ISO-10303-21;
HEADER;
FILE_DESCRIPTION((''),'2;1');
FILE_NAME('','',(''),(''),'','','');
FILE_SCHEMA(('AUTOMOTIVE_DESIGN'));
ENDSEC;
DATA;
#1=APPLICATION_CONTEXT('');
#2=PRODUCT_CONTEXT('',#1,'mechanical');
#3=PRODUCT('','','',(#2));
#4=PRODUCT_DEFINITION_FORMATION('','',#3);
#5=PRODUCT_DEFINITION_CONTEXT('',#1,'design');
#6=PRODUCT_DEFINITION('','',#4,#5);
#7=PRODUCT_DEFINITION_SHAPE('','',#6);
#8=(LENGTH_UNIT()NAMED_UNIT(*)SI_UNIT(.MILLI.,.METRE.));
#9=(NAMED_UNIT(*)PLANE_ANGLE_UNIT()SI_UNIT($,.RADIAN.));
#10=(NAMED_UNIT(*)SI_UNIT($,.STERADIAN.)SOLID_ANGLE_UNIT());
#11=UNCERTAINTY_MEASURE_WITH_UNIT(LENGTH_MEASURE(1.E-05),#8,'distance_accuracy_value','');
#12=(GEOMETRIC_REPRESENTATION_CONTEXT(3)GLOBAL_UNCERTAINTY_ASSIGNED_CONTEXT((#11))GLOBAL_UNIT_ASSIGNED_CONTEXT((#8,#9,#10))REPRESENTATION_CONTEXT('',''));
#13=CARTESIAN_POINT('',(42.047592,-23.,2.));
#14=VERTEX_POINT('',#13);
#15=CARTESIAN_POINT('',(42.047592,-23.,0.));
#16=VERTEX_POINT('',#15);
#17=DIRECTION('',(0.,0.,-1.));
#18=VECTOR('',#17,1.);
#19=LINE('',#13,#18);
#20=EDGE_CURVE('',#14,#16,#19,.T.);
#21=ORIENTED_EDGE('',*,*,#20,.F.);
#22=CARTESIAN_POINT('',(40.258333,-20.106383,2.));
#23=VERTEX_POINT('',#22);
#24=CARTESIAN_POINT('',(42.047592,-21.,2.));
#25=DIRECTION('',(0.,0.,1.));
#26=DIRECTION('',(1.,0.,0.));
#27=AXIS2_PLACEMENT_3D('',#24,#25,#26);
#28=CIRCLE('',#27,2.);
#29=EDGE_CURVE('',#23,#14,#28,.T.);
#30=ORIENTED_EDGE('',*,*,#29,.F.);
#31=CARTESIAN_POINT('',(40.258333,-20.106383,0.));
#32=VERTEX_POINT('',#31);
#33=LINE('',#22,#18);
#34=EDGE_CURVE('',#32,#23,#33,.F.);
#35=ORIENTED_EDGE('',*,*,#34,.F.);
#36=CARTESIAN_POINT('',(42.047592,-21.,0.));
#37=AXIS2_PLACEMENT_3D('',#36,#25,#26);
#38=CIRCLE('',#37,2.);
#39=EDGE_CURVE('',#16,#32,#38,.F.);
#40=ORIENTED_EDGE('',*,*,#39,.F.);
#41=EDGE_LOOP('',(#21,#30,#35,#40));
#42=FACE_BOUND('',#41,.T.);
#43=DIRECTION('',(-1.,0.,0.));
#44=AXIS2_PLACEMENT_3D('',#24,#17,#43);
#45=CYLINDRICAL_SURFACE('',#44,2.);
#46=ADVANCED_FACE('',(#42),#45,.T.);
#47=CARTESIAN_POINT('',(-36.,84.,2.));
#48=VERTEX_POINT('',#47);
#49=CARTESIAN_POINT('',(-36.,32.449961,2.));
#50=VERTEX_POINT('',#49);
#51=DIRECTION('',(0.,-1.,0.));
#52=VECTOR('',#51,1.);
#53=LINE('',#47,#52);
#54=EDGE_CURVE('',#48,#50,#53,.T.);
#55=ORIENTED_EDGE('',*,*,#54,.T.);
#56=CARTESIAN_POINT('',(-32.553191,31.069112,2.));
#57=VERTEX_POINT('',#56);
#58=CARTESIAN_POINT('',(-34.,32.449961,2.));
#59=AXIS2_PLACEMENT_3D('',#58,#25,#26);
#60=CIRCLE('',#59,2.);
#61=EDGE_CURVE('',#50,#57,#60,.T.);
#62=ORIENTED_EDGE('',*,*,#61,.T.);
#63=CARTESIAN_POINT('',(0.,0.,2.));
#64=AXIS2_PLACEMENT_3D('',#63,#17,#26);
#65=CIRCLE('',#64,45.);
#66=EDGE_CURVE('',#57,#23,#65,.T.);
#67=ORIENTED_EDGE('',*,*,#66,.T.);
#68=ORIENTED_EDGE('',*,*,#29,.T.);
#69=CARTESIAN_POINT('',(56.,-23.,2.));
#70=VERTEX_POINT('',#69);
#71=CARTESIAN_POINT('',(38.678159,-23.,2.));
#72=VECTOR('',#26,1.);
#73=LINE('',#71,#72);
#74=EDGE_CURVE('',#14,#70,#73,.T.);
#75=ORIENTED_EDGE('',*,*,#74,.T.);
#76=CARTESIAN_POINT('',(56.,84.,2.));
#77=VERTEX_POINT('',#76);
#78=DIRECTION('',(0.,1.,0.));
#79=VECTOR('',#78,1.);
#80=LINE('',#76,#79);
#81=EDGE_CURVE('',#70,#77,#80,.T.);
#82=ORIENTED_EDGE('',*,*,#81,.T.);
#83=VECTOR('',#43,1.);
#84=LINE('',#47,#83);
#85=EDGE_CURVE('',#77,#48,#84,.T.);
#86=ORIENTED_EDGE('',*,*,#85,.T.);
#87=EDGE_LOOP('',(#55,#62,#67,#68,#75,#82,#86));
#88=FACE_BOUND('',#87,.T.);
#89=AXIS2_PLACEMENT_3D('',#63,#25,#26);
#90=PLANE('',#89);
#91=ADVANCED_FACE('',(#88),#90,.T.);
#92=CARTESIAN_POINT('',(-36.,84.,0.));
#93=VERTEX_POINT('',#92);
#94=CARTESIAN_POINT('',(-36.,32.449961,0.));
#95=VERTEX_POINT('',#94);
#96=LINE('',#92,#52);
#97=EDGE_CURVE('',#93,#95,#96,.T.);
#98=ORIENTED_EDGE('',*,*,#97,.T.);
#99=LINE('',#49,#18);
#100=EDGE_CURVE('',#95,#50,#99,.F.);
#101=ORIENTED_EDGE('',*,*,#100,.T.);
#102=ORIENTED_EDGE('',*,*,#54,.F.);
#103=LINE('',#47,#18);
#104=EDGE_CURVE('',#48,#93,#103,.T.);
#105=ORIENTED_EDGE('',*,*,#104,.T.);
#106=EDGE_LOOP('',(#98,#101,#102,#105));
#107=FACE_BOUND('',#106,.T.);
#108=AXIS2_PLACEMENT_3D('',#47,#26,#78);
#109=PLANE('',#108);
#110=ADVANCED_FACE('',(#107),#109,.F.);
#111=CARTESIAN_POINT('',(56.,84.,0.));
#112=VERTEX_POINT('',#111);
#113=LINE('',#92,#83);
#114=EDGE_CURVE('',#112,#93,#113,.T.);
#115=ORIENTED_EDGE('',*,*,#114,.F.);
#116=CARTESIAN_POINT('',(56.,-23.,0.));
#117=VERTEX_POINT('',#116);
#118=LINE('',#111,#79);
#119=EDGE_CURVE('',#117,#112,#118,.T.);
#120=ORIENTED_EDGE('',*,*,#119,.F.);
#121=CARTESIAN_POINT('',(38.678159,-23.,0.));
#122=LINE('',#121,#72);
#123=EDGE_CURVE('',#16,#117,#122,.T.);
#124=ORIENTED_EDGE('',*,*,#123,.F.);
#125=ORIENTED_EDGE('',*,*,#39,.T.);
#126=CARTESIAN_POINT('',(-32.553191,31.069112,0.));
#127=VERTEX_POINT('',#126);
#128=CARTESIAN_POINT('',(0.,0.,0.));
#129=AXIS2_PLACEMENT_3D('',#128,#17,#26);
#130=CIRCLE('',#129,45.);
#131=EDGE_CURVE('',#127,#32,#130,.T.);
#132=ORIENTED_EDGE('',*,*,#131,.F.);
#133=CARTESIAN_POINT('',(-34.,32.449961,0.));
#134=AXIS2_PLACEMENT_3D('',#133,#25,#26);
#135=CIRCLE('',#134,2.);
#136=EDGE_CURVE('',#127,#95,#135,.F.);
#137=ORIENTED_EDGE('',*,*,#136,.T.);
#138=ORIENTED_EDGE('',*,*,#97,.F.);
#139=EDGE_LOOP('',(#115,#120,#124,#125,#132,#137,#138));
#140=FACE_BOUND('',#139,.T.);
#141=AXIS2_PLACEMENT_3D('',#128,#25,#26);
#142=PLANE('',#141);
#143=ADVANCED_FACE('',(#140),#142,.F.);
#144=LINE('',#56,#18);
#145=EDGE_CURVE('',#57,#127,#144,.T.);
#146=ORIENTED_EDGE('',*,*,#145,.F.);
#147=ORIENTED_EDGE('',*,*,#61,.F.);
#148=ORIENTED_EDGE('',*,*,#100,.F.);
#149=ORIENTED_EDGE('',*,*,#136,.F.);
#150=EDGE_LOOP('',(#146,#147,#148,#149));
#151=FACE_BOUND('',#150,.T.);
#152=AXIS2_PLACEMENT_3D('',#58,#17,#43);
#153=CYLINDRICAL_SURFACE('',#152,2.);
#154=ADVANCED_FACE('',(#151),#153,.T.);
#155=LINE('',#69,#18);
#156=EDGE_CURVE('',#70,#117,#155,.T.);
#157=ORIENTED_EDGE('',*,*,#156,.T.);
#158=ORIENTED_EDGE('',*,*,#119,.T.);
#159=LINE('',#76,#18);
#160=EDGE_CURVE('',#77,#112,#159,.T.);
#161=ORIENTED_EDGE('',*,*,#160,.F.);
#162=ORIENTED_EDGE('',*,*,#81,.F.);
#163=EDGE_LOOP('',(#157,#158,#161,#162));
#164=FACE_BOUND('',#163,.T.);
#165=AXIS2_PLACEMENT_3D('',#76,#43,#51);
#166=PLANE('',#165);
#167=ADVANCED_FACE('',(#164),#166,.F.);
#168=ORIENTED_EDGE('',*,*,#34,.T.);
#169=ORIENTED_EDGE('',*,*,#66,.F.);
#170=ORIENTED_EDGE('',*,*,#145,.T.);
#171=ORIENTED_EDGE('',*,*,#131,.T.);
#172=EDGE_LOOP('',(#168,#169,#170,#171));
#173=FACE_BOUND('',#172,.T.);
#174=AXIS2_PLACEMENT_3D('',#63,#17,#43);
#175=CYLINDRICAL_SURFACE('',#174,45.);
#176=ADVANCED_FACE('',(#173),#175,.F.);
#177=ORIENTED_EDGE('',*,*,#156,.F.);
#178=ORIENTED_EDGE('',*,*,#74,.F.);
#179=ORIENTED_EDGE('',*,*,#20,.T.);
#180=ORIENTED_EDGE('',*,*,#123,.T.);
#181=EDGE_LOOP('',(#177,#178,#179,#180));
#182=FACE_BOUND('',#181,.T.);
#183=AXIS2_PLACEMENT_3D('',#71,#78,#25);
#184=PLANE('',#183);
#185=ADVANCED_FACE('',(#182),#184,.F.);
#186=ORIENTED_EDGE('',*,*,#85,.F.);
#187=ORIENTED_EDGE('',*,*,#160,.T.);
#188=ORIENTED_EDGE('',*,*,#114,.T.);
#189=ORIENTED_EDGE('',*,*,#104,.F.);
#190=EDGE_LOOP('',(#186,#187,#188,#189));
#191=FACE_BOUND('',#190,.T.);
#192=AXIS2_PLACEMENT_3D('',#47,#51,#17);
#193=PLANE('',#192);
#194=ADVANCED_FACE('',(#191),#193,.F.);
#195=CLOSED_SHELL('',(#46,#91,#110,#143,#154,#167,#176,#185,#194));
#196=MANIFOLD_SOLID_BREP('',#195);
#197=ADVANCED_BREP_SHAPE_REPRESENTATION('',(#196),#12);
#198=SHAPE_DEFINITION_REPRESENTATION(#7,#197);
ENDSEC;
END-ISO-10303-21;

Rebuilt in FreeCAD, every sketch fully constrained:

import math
import FreeCAD as App
import Part
import Sketcher
from FreeCAD import Vector


def edges_at(feature, points):
    """Names of the edges that pass closest to the given points."""
    edges = feature.Shape.Edges
    near = lambda p: min(range(len(edges)), key=lambda i: edges[i].distToShape(Part.Vertex(*p))[0])
    return sorted({f"Edge{near(p) + 1}" for p in points})

doc = App.newDocument("Part")
body = doc.addObject("PartDesign::Body", "Body")

# Sketch on XY plane
sketch1 = doc.addObject("Sketcher::SketchObject", "Sketch")
body.addObject(sketch1)
sketch1.AttachmentSupport = (doc.XY_Plane, [""])
sketch1.MapMode = "FlatFace"
sketch1.addGeometry([
    Part.LineSegment(Vector(56, 84, 0), Vector(-36, 84, 0)),  # 0
    Part.LineSegment(Vector(-36, 84, 0), Vector(-36, 27, 0)),  # 1
    Part.ArcOfCircle(Part.Circle(Vector(0, 0, 0), Vector(0, 0, 1), 45), math.radians(-31), math.radians(143)),  # 2
    Part.LineSegment(Vector(39, -23, 0), Vector(56, -23, 0)),  # 3
    Part.LineSegment(Vector(56, -23, 0), Vector(56, 84, 0)),  # 4
], False)
sketch1.addConstraint([
    Sketcher.Constraint("Coincident", 0, 2, 1, 1),
    Sketcher.Constraint("Coincident", 1, 2, 2, 2),
    Sketcher.Constraint("Coincident", 2, 1, 3, 1),
    Sketcher.Constraint("Coincident", 3, 2, 4, 1),
    Sketcher.Constraint("Coincident", 4, 2, 0, 1),
    Sketcher.Constraint("Horizontal", 0),
    Sketcher.Constraint("Vertical", 1),
    Sketcher.Constraint("Horizontal", 3),
    Sketcher.Constraint("Vertical", 4),
    Sketcher.Constraint("Coincident", 2, 3, -1, 1),
    Sketcher.Constraint("Radius", 2, 45.0),
    Sketcher.Constraint("DistanceX", 0, 2, 0, 1, 92.0),
    Sketcher.Constraint("DistanceY", 1, 2, 1, 1, 57.0),
    Sketcher.Constraint("DistanceY", 4, 1, 4, 2, 107.0),
    Sketcher.Constraint("DistanceX", 0, 2, -1, 1, 36.0),
])
pad1 = doc.addObject("PartDesign::Pad", "Pad")
body.addObject(pad1)
pad1.Profile = sketch1
pad1.Length = 2
doc.recompute()

fillet = doc.addObject("PartDesign::Fillet", "Fillet")
body.addObject(fillet)
fillet.Base = (pad1, edges_at(pad1, [(38.678, -23, 1), (-36, 27, 1)]))
fillet.Radius = 2

doc.recompute()
